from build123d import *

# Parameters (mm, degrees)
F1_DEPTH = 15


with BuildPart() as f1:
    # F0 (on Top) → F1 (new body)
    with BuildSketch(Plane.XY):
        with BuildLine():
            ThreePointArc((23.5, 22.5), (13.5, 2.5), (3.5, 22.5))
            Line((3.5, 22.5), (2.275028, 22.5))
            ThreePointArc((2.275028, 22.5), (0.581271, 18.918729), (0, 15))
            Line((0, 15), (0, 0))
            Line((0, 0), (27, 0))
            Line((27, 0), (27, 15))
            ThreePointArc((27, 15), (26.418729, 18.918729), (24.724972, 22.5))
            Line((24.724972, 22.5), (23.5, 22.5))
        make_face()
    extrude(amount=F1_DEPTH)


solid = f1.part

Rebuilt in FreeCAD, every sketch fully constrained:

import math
import FreeCAD as App
import Part
import Sketcher

doc = App.newDocument("Part")
body = doc.addObject("PartDesign::Body", "Body")

# Sketch on XY plane
sketch1 = body.newObject("Sketcher::SketchObject", "Sketch")
sketch1.AttachmentSupport = (doc.getObject("XY_Plane"), [""])
sketch1.MapMode = "FlatFace"
sketch1.addGeometry(Part.ArcOfCircle(Part.Circle(App.Vector(13.5, 15, 0), App.Vector(0, 0, 1), 12.5), math.radians(143), math.radians(397)), False)
sketch1.addGeometry(Part.LineSegment(App.Vector(3.5, 22.5, 0), App.Vector(2.3, 22.5, 0)), False)
sketch1.addGeometry(Part.ArcOfCircle(Part.Circle(App.Vector(13.5, 15, 0), App.Vector(0, 0, 1), 13.5), math.radians(146), math.radians(180)), False)
sketch1.addGeometry(Part.LineSegment(App.Vector(0, 15, 0), App.Vector(0, 0, 0)), False)
sketch1.addGeometry(Part.LineSegment(App.Vector(0, 0, 0), App.Vector(27, 0, 0)), False)
sketch1.addGeometry(Part.LineSegment(App.Vector(27, 0, 0), App.Vector(27, 15, 0)), False)
sketch1.addGeometry(Part.ArcOfCircle(Part.Circle(App.Vector(13.5, 15, 0), App.Vector(0, 0, 1), 13.5), math.radians(0), math.radians(34)), False)
sketch1.addGeometry(Part.LineSegment(App.Vector(24.7, 22.5, 0), App.Vector(23.5, 22.5, 0)), False)
sketch1.addConstraint(Sketcher.Constraint("Coincident", 0, 1, 1, 1))
sketch1.addConstraint(Sketcher.Constraint("Coincident", 1, 2, 2, 1))
sketch1.addConstraint(Sketcher.Constraint("Tangent", 2, 2, 3, 1))
sketch1.addConstraint(Sketcher.Constraint("Coincident", 3, 2, 4, 1))
sketch1.addConstraint(Sketcher.Constraint("Coincident", 4, 2, 5, 1))
sketch1.addConstraint(Sketcher.Constraint("Tangent", 5, 2, 6, 1))
sketch1.addConstraint(Sketcher.Constraint("Coincident", 6, 2, 7, 1))
sketch1.addConstraint(Sketcher.Constraint("Coincident", 7, 2, 0, 2))
sketch1.addConstraint(Sketcher.Constraint("Horizontal", 1))
sketch1.addConstraint(Sketcher.Constraint("Vertical", 3))
sketch1.addConstraint(Sketcher.Constraint("Horizontal", 4))
sketch1.addConstraint(Sketcher.Constraint("Vertical", 5))
sketch1.addConstraint(Sketcher.Constraint("Horizontal", 7))
sketch1.addConstraint(Sketcher.Constraint("Coincident", 3, 2, -1, 1))
sketch1.addConstraint(Sketcher.Constraint("Coincident", 2, 3, 0, 3))
sketch1.addConstraint(Sketcher.Constraint("Coincident", 6, 3, 0, 3))
sketch1.addConstraint(Sketcher.Constraint("Equal", 2, 6))
sketch1.addConstraint(Sketcher.Constraint("Horizontal", 1, 2, 6, 2))
sketch1.addConstraint(Sketcher.Constraint("Radius", 0, 12.5))
sketch1.addConstraint(Sketcher.Constraint("Radius", 2, 13.500002))
sketch1.addConstraint(Sketcher.Constraint("DistanceY", 3, 2, 3, 1, 15.0))
sketch1.addConstraint(Sketcher.Constraint("DistanceX", 0, 1, 6, 3, 9.999998))
pad1 = body.newObject("PartDesign::Pad", "Pad")
pad1.Profile = sketch1
pad1.Length = 15

doc.recompute()
